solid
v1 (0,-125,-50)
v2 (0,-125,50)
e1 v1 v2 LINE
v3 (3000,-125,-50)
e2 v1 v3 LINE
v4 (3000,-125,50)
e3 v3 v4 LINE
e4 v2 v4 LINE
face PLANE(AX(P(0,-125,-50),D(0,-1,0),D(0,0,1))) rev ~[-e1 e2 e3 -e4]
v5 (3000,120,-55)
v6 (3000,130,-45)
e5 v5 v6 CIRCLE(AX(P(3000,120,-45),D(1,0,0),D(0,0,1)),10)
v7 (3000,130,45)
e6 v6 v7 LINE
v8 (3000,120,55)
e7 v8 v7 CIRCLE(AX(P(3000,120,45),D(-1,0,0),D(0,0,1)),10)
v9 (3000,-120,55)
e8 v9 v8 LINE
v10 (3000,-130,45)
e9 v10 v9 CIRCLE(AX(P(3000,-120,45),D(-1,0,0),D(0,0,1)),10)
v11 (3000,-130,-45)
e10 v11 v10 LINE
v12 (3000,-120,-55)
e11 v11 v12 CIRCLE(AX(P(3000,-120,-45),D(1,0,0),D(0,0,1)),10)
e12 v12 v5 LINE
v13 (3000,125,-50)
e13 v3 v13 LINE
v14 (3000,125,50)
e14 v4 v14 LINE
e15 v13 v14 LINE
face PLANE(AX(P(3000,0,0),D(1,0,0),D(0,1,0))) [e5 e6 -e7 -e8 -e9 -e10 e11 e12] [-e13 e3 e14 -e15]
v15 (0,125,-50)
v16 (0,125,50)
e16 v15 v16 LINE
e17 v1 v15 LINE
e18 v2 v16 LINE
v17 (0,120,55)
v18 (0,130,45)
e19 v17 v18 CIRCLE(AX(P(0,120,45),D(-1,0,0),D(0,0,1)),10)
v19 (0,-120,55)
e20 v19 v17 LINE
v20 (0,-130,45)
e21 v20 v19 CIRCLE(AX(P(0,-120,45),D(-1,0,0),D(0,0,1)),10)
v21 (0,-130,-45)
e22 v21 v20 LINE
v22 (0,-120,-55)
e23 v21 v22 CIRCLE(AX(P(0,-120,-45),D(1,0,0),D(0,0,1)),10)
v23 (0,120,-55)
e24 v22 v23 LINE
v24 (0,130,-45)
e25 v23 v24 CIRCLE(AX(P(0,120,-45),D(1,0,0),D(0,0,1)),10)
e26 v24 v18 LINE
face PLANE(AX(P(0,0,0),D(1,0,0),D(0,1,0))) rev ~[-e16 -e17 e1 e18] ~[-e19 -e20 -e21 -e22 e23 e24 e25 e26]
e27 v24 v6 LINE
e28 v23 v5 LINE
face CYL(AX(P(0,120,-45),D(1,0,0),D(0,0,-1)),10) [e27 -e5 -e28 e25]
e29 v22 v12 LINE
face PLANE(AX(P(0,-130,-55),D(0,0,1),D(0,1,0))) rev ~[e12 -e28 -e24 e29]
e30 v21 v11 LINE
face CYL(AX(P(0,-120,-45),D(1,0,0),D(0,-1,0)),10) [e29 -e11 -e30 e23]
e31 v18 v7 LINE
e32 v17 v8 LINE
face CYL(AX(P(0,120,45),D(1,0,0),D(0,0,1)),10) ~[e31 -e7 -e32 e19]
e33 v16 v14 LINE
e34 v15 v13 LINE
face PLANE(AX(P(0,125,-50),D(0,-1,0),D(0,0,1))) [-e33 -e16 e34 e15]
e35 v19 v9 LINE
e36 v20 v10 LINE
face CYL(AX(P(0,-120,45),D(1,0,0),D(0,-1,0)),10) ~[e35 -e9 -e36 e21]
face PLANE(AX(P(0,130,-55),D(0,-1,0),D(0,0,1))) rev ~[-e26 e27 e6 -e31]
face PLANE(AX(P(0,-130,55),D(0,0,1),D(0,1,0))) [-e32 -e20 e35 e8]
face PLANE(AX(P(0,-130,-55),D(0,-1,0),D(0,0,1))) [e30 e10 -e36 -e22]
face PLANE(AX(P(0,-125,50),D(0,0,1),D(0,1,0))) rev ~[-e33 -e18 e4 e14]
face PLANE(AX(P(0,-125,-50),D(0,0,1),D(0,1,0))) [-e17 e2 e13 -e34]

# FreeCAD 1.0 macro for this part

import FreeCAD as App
import Part
import Sketcher

V = App.Vector
Q = App.Units.Quantity


def edges_at(feature, points):
    """Names of the edges that pass closest to the given points."""
    edges = feature.Shape.Edges
    near = lambda p: min(range(len(edges)), key=lambda i: edges[i].distToShape(Part.Vertex(*p))[0])
    return sorted({f"Edge{near(p) + 1}" for p in points})

doc = App.newDocument("Part")
body = doc.addObject("PartDesign::Body", "Body")

# Sketch on YZ plane
sketch1 = body.newObject("Sketcher::SketchObject", "Sketch")
sketch1.AttachmentSupport = (doc.getObject("YZ_Plane"), [""])
sketch1.MapMode = "FlatFace"
sketch1.addGeometry([
    Part.LineSegment(V(-130, 55, 0), V(-130, -55, 0)),  # 0
    Part.LineSegment(V(-130, -55, 0), V(130, -55, 0)),  # 1
    Part.LineSegment(V(130, -55, 0), V(130, 55, 0)),  # 2
    Part.LineSegment(V(130, 55, 0), V(-130, 55, 0)),  # 3
    Part.LineSegment(V(125, -50, 0), V(-125, -50, 0)),  # 4
    Part.LineSegment(V(-125, -50, 0), V(-125, 50, 0)),  # 5
    Part.LineSegment(V(-125, 50, 0), V(125, 50, 0)),  # 6
    Part.LineSegment(V(125, 50, 0), V(125, -50, 0)),  # 7
], False)
sketch1.addConstraint([
    Sketcher.Constraint("Coincident", 0, 2, 1, 1),
    Sketcher.Constraint("Coincident", 1, 2, 2, 1),
    Sketcher.Constraint("Coincident", 2, 2, 3, 1),
    Sketcher.Constraint("Coincident", 3, 2, 0, 1),
    Sketcher.Constraint("Coincident", 4, 2, 5, 1),
    Sketcher.Constraint("Coincident", 5, 2, 6, 1),
    Sketcher.Constraint("Coincident", 6, 2, 7, 1),
    Sketcher.Constraint("Coincident", 7, 2, 4, 1),
    Sketcher.Constraint("Vertical", 0),
    Sketcher.Constraint("Horizontal", 1),
    Sketcher.Constraint("Vertical", 2),
    Sketcher.Constraint("Horizontal", 3),
    Sketcher.Constraint("Horizontal", 4),
    Sketcher.Constraint("Vertical", 5),
    Sketcher.Constraint("Horizontal", 6),
    Sketcher.Constraint("Vertical", 7),
    Sketcher.Constraint("Symmetric", 0, 2, 2, 2, -1, 1),
    Sketcher.Constraint("Symmetric", 4, 2, 6, 2, -1, 1),
    Sketcher.Constraint("DistanceX", 1, 1, 1, 2, Q("260 mm")),
    Sketcher.Constraint("DistanceX", 4, 2, 4, 1, Q("250 mm")),
    Sketcher.Constraint("DistanceY", 0, 2, 0, 1, Q("110 mm")),
    Sketcher.Constraint("DistanceY", 5, 1, 5, 2, Q("100 mm")),
])
pad1 = body.newObject("PartDesign::Pad", "Pad")
pad1.Profile = sketch1
pad1.Length = 3000
doc.recompute()

fillet = body.newObject("PartDesign::Fillet", "Fillet")
fillet.Base = (pad1, edges_at(pad1, [
    (1500, -130, 55),
    (1500, 130, 55),
    (1500, -130, -55),
    (1500, 130, -55),
]))
fillet.Radius = 10

doc.recompute()
